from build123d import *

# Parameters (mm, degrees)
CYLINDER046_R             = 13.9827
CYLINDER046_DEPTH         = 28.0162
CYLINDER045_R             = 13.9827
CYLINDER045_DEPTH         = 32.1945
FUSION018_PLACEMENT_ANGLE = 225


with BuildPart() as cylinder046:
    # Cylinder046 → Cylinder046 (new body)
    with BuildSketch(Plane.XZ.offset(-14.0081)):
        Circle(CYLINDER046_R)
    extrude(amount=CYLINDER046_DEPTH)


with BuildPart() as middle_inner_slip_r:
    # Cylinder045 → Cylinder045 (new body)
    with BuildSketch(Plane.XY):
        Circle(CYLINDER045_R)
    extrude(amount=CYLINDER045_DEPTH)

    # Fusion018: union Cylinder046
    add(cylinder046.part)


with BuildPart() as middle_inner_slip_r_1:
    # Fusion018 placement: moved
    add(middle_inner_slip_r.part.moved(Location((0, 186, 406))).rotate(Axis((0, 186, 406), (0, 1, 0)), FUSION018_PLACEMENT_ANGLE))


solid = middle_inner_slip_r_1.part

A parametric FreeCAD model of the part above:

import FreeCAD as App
import Part
import Sketcher
from FreeCAD import Vector
Q = App.Units.Quantity

doc = App.newDocument("Part")
body = doc.addObject("PartDesign::Body", "Body")

# Sketch on XZ plane
sketch1 = body.newObject("Sketcher::SketchObject", "Sketch")
sketch1.AttachmentSupport = (doc.getObject("XZ_Plane"), [""])
sketch1.MapMode = "FlatFace"
sketch1.AttachmentOffset = App.Placement(Vector(0, 0, -0.5515 * 25.4), App.Rotation())
sketch1.addGeometry(Part.Circle(Vector(0, 0, 0), Vector(0, 0, 1), 14), False)
sketch1.addConstraint([
    Sketcher.Constraint("Coincident", 0, 3, -1, 1),
    Sketcher.Constraint("Diameter", 0, Q("1.101 in")),
])
pad1 = body.newObject("PartDesign::Pad", "Pad")
pad1.Profile = sketch1
pad1.Length = Q("1.103 in")
body2 = doc.addObject("PartDesign::Body", "Body001")

# Sketch on XY plane
sketch2 = body2.newObject("Sketcher::SketchObject", "Sketch001")
sketch2.AttachmentSupport = (doc.getObject("XY_Plane001"), [""])
sketch2.MapMode = "FlatFace"
sketch2.addGeometry(Part.Circle(Vector(0, 0, 0), Vector(0, 0, 1), 14), False)
sketch2.addConstraint([
    Sketcher.Constraint("Coincident", 0, 3, -1, 1),
    Sketcher.Constraint("Diameter", 0, Q("1.101 in")),
])
pad2 = body2.newObject("PartDesign::Pad", "Pad001")
pad2.Profile = sketch2
pad2.Length = Q("1.2675 in")
doc.recompute()

boolean = body2.newObject("PartDesign::Boolean", "Boolean")
boolean.Type = "Fuse"
boolean.addObjects([body])
body3 = doc.addObject("PartDesign::Body", "Body002")
doc.recompute()

body2.Placement = App.Placement(Vector(0, 186, 406), App.Rotation(Vector(0, 1, 0), 225))
boolean2 = body3.newObject("PartDesign::Boolean", "Boolean001")
boolean2.Type = "Fuse"
boolean2.addObjects([body2])

doc.recompute()
